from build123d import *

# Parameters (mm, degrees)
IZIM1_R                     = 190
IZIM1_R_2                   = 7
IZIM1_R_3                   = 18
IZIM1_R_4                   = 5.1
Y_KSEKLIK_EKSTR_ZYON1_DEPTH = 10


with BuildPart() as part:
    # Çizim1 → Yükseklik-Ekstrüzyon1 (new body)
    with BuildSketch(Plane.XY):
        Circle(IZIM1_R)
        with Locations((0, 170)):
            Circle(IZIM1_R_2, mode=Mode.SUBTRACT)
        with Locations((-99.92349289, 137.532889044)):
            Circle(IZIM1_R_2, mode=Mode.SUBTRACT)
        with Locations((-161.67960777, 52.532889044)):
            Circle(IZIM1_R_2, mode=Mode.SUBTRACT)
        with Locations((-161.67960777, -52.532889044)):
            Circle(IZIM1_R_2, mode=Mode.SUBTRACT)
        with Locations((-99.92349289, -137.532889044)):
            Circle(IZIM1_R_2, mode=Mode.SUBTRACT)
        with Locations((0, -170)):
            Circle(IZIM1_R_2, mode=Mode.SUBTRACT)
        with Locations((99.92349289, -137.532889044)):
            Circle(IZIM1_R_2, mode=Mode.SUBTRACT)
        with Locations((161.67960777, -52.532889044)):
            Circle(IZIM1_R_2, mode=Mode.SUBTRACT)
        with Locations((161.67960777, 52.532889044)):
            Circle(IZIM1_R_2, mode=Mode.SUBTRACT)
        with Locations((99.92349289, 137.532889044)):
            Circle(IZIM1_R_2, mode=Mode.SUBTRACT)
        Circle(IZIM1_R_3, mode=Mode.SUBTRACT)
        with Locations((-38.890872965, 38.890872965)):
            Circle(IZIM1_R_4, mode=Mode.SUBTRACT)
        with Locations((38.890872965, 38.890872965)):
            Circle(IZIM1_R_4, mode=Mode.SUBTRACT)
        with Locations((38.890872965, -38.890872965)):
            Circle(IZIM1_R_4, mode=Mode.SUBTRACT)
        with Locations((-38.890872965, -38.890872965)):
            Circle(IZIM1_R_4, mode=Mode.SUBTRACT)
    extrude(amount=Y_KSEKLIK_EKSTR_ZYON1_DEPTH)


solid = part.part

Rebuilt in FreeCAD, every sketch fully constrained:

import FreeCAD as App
import Part
import Sketcher
from FreeCAD import Vector
Q = App.Units.Quantity

doc = App.newDocument("Part")
body = doc.addObject("PartDesign::Body", "Body")

sketch1 = doc.addObject("Sketcher::SketchObject", "Sketch")
body.addObject(sketch1)
sketch1.AttachmentSupport = (doc.XY_Plane, [""])
sketch1.MapMode = "FlatFace"
sketch1.addGeometry([
    Part.Circle(Vector(0, 0, 0), Vector(0, 0, 1), 190),
    Part.Circle(Vector(-100, -138, 0), Vector(0, 0, 1), 7),
    Part.Circle(Vector(-162, -53, 0), Vector(0, 0, 1), 7),
    Part.Circle(Vector(-39, -39, 0), Vector(0, 0, 1), 5),
    Part.Circle(Vector(0, -170, 0), Vector(0, 0, 1), 7),
    Part.Circle(Vector(100, -138, 0), Vector(0, 0, 1), 7),
    Part.Circle(Vector(39, -39, 0), Vector(0, 0, 1), 5),
    Part.Circle(Vector(162, -53, 0), Vector(0, 0, 1), 7),
    Part.Circle(Vector(-162, 53, 0), Vector(0, 0, 1), 7),
    Part.Circle(Vector(-39, 39, 0), Vector(0, 0, 1), 5),
    Part.Circle(Vector(-100, 138, 0), Vector(0, 0, 1), 7),
    Part.Circle(Vector(0, 0, 0), Vector(0, 0, 1), 18),
    Part.Circle(Vector(39, 39, 0), Vector(0, 0, 1), 5),
    Part.Circle(Vector(162, 53, 0), Vector(0, 0, 1), 7),
    Part.Circle(Vector(0, 170, 0), Vector(0, 0, 1), 7),
    Part.Circle(Vector(100, 138, 0), Vector(0, 0, 1), 7),
], False)
sketch1.addConstraint([
    Sketcher.Constraint("Coincident", 0, 3, -1, 1),
    Sketcher.Constraint("Coincident", 11, 3, -1, 1),
    Sketcher.Constraint("Equal", 1, 2),
    Sketcher.Constraint("Equal", 2, 4),
    Sketcher.Constraint("Equal", 4, 5),
    Sketcher.Constraint("Equal", 3, 6),
    Sketcher.Constraint("Equal", 5, 7),
    Sketcher.Constraint("Equal", 7, 8),
    Sketcher.Constraint("Equal", 6, 9),
    Sketcher.Constraint("Equal", 8, 10),
    Sketcher.Constraint("Equal", 9, 12),
    Sketcher.Constraint("Equal", 10, 13),
    Sketcher.Constraint("Equal", 13, 14),
    Sketcher.Constraint("Equal", 14, 15),
    Sketcher.Constraint("Symmetric", 7, 3, 8, 3, -1, 1),
    Sketcher.Constraint("Symmetric", 6, 3, 9, 3, -1, 1),
    Sketcher.Constraint("Symmetric", 5, 3, 10, 3, -1, 1),
    Sketcher.Constraint("Symmetric", 3, 3, 12, 3, -1, 1),
    Sketcher.Constraint("Symmetric", 2, 3, 13, 3, -1, 1),
    Sketcher.Constraint("Symmetric", 4, 3, 14, 3, -1, 1),
    Sketcher.Constraint("Symmetric", 1, 3, 15, 3, -1, 1),
    Sketcher.Constraint("Symmetric", 1, 3, 5, 3, -2),
    Sketcher.Constraint("Symmetric", 3, 3, 6, 3, -2),
    Sketcher.Constraint("Symmetric", 2, 3, 7, 3, -2),
    Sketcher.Constraint("PointOnObject", 4, 3, -2),
    Sketcher.Constraint("Diameter", 0, Q("380 mm")),
    Sketcher.Constraint("Diameter", 1, Q("14 mm")),
    Sketcher.Constraint("Diameter", 11, Q("36 mm")),
    Sketcher.Constraint("Diameter", 3, Q("10.2 mm")),
    Sketcher.Constraint("DistanceY", 4, 3, -1, 1, Q("170 mm")),
    Sketcher.Constraint("DistanceY", 1, 3, 2, 3, Q("85 mm")),
    Sketcher.Constraint("DistanceX", 2, 3, 5, 3, Q("261.603101 mm")),
    Sketcher.Constraint("DistanceY", 1, 3, -1, 1, Q("137.532889 mm")),
    Sketcher.Constraint("DistanceX", 1, 3, 3, 3, Q("61.03262 mm")),
    Sketcher.Constraint("DistanceX", 1, 3, -1, 1, Q("99.923493 mm")),
    Sketcher.Constraint("DistanceY", 3, 3, -1, 1, Q("38.890873 mm")),
])
pad1 = doc.addObject("PartDesign::Pad", "Pad")
body.addObject(pad1)
pad1.Profile = sketch1
pad1.Length = 10

doc.recompute()
